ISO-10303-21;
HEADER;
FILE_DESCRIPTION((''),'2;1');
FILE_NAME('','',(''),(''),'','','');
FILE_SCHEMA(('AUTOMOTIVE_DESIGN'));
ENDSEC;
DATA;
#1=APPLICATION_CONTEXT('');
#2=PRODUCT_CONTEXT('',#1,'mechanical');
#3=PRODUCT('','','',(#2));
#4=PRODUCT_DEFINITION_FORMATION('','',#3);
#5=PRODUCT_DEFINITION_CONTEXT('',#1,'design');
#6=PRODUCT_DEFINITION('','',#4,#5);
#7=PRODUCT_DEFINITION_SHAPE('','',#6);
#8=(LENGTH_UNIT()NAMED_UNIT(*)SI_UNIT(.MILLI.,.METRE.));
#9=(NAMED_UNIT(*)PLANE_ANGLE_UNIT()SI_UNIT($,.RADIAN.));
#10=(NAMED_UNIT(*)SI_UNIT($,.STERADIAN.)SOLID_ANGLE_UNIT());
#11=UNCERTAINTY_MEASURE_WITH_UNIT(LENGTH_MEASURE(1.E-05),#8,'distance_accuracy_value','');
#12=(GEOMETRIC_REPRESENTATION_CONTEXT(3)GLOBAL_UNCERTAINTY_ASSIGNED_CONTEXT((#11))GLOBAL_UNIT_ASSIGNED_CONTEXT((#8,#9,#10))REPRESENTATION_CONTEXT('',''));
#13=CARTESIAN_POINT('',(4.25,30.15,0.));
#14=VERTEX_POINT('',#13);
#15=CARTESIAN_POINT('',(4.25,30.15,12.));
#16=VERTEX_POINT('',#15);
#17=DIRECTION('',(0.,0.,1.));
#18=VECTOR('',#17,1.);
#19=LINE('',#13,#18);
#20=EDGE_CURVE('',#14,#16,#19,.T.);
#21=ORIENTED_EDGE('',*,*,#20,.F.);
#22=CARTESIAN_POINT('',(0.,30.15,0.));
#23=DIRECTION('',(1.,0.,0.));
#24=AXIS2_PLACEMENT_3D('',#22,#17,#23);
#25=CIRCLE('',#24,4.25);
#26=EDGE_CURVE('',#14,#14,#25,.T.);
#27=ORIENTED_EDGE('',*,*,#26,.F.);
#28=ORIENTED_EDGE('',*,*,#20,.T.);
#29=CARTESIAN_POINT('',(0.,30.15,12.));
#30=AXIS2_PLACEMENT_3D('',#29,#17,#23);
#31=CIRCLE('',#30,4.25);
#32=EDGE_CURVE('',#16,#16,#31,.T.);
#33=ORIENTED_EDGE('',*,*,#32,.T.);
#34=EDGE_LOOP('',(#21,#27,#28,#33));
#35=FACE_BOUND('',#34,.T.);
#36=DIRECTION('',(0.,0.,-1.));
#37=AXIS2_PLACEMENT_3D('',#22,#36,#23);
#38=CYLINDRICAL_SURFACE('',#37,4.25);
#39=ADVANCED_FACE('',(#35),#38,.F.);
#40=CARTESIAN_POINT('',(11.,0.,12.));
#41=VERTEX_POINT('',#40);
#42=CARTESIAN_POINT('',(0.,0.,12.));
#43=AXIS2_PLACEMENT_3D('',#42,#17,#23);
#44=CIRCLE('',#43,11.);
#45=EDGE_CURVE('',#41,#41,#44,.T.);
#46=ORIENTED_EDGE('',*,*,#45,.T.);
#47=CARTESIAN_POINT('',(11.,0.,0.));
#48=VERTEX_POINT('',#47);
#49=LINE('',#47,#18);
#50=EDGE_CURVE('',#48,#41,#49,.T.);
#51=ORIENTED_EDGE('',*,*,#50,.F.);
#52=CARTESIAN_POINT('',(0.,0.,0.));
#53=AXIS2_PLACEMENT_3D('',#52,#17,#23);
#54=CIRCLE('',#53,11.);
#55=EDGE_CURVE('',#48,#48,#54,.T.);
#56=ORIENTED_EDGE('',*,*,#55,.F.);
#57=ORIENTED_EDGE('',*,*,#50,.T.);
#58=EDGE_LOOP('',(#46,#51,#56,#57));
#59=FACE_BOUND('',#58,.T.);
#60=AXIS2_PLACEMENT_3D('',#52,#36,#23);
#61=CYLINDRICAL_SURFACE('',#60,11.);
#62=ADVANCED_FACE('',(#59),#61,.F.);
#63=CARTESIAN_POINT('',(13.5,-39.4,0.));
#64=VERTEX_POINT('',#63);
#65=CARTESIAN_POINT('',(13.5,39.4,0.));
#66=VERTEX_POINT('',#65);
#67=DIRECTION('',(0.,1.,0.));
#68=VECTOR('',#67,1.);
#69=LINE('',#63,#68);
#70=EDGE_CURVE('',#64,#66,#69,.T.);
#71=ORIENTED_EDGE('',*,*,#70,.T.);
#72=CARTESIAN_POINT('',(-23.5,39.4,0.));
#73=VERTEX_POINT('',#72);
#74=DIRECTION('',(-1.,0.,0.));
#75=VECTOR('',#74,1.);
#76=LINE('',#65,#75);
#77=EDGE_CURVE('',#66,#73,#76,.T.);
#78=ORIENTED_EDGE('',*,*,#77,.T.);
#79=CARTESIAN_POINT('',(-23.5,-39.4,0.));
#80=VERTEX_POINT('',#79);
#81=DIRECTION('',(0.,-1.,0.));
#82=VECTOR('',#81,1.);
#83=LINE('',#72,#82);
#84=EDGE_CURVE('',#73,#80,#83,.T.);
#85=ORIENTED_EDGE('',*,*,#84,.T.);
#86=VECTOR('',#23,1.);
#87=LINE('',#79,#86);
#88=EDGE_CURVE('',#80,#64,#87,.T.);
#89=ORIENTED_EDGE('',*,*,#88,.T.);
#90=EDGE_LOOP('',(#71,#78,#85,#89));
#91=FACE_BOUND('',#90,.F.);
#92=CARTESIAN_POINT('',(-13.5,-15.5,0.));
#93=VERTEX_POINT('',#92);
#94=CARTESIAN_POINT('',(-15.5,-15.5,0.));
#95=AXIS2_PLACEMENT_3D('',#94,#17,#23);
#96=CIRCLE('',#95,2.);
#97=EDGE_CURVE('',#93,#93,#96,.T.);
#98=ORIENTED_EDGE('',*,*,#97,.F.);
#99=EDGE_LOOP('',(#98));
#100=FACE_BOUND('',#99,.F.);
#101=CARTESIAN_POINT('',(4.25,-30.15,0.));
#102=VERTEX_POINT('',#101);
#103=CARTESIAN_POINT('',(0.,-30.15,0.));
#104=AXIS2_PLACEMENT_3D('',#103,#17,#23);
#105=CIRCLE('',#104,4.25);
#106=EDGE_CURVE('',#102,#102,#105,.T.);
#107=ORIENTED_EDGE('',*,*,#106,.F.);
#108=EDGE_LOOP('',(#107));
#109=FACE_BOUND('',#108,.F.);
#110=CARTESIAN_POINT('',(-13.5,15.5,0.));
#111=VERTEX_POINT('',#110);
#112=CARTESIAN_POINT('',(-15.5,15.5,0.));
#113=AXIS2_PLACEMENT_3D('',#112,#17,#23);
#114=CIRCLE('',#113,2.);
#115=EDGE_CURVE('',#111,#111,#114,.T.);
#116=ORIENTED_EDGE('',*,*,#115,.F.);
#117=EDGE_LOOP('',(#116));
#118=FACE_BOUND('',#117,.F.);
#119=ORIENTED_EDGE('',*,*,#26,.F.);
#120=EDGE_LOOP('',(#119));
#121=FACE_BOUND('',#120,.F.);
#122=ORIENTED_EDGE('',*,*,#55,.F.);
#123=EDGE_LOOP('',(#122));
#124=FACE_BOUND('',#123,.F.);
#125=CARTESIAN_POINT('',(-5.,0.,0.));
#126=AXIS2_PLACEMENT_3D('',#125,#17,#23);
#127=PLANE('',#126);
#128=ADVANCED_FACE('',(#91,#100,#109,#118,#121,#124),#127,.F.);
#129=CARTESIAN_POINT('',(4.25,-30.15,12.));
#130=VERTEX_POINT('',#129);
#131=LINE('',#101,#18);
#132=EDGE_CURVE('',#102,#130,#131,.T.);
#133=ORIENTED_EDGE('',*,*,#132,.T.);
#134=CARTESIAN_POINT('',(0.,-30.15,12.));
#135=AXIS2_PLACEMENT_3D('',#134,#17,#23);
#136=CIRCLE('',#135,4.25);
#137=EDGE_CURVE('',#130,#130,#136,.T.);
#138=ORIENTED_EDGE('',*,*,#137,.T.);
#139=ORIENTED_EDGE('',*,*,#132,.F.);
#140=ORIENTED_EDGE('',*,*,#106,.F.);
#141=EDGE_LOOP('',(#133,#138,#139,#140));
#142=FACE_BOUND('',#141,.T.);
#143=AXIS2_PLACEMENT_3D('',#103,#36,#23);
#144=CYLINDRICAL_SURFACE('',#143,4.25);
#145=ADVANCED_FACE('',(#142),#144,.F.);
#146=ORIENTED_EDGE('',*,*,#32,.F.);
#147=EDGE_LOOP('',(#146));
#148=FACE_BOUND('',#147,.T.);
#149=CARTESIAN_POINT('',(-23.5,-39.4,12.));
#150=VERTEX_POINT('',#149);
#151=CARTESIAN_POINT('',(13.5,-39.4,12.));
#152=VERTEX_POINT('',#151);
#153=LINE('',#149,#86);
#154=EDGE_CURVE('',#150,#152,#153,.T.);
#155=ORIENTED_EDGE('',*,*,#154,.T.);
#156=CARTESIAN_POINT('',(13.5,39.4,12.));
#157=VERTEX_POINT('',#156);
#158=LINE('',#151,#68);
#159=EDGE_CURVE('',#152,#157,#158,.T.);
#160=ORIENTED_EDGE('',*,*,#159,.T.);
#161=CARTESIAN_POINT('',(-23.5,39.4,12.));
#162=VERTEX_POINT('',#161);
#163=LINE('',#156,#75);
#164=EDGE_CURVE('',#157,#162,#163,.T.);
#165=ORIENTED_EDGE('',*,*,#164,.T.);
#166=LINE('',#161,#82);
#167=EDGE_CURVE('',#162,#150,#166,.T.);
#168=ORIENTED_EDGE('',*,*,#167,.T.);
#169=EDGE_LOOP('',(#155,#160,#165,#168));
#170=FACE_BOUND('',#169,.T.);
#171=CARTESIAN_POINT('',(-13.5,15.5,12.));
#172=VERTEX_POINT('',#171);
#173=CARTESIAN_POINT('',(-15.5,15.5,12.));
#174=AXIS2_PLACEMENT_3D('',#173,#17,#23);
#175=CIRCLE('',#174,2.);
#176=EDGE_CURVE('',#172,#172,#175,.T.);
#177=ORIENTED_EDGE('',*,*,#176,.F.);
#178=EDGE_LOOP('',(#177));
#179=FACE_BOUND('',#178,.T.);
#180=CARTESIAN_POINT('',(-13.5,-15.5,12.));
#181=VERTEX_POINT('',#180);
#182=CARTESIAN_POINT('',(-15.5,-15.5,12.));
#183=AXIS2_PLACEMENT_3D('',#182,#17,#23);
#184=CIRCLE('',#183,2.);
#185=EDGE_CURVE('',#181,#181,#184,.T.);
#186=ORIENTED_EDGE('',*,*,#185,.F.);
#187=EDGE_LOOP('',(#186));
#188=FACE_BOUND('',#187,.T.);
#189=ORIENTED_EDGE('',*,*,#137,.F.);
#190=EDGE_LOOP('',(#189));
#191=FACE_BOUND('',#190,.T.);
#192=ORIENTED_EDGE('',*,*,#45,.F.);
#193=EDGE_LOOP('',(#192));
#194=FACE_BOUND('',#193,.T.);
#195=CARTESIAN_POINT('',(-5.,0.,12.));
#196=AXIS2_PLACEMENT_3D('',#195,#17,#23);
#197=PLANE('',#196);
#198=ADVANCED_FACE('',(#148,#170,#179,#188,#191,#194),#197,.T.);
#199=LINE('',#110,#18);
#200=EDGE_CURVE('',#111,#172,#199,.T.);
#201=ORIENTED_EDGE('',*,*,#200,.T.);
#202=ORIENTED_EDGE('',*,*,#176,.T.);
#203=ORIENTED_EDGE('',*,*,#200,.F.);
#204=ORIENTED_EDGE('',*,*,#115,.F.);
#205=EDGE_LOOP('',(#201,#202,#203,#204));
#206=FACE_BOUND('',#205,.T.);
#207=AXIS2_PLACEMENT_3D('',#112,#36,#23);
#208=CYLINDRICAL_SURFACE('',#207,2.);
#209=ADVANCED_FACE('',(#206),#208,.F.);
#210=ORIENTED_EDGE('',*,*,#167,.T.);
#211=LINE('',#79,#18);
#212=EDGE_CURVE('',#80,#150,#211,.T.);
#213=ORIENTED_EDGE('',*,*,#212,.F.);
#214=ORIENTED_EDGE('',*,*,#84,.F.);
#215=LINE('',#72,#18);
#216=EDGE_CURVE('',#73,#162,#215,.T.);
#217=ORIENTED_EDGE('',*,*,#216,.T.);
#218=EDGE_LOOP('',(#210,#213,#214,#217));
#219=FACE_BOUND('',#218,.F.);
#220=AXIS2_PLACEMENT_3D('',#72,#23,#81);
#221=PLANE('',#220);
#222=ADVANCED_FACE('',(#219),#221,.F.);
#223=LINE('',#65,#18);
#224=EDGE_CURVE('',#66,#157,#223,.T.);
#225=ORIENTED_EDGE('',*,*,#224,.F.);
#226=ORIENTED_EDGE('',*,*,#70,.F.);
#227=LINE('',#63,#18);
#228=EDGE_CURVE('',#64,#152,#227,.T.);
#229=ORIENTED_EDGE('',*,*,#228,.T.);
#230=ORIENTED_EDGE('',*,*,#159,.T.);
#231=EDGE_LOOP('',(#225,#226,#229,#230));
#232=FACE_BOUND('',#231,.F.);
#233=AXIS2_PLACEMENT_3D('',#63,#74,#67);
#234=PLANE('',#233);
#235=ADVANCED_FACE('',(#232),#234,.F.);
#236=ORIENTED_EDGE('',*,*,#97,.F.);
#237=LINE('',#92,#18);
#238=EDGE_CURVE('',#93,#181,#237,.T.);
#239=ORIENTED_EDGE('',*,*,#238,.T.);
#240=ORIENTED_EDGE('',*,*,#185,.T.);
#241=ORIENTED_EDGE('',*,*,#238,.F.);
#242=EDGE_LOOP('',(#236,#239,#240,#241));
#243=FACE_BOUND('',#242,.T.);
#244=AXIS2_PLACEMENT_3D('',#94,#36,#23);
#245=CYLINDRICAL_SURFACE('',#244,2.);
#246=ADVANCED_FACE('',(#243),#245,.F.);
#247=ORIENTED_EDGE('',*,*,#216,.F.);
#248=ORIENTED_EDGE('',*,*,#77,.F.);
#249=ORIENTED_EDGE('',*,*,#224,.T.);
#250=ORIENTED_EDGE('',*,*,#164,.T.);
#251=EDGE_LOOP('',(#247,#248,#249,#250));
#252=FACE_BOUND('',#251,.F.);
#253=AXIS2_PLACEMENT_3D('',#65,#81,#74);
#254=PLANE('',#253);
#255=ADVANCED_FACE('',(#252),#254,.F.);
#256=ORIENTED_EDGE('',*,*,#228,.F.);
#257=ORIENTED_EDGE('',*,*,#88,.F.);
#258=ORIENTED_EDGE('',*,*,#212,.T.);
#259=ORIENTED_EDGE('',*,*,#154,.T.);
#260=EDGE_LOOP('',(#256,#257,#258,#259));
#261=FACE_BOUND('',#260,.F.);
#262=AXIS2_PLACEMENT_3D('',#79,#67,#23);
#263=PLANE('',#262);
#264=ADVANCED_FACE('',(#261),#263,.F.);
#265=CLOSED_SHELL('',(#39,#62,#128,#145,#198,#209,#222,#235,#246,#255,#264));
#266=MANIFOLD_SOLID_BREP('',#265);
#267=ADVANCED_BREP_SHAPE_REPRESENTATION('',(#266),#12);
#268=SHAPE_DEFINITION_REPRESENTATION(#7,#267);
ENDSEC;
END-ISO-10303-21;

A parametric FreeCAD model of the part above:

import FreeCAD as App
import Part
import Sketcher
from FreeCAD import Vector
Q = App.Units.Quantity

doc = App.newDocument("Part")
body = doc.addObject("PartDesign::Body", "Body")

# Sketch on XY plane
sketch1 = doc.addObject("Sketcher::SketchObject", "Sketch")
body.addObject(sketch1)
sketch1.AttachmentSupport = (doc.XY_Plane, [""])
sketch1.MapMode = "FlatFace"
sketch1.addGeometry(Part.LineSegment(Vector(13.5, -39.4, 0), Vector(13.5, 39.4, 0)), False)
sketch1.addGeometry(Part.LineSegment(Vector(13.5, 39.4, 0), Vector(-23.5, 39.4, 0)), False)
sketch1.addGeometry(Part.LineSegment(Vector(-23.5, 39.4, 0), Vector(-23.5, -39.4, 0)), False)
sketch1.addGeometry(Part.LineSegment(Vector(-23.5, -39.4, 0), Vector(13.5, -39.4, 0)), False)
sketch1.addGeometry(Part.Circle(Vector(-15.5, -15.5, 0), Vector(0, 0, 1), 2), False)
sketch1.addGeometry(Part.Circle(Vector(0, -30.15, 0), Vector(0, 0, 1), 4.25), False)
sketch1.addGeometry(Part.Circle(Vector(-15.5, 15.5, 0), Vector(0, 0, 1), 2), False)
sketch1.addGeometry(Part.Circle(Vector(0, 0, 0), Vector(0, 0, 1), 11), False)
sketch1.addGeometry(Part.Circle(Vector(0, 30.15, 0), Vector(0, 0, 1), 4.25), False)
sketch1.addConstraint(Sketcher.Constraint("Coincident", 0, 2, 1, 1))
sketch1.addConstraint(Sketcher.Constraint("Coincident", 1, 2, 2, 1))
sketch1.addConstraint(Sketcher.Constraint("Coincident", 2, 2, 3, 1))
sketch1.addConstraint(Sketcher.Constraint("Coincident", 3, 2, 0, 1))
sketch1.addConstraint(Sketcher.Constraint("Vertical", 0))
sketch1.addConstraint(Sketcher.Constraint("Horizontal", 1))
sketch1.addConstraint(Sketcher.Constraint("Vertical", 2))
sketch1.addConstraint(Sketcher.Constraint("Horizontal", 3))
sketch1.addConstraint(Sketcher.Constraint("Coincident", 7, 3, -1, 1))
sketch1.addConstraint(Sketcher.Constraint("Equal", 4, 6))
sketch1.addConstraint(Sketcher.Constraint("Equal", 5, 8))
sketch1.addConstraint(Sketcher.Constraint("Symmetric", 5, 3, 8, 3, -1, 1))
sketch1.addConstraint(Sketcher.Constraint("Symmetric", 4, 3, 6, 3, -1))
sketch1.addConstraint(Sketcher.Constraint("PointOnObject", 5, 3, -2))
sketch1.addConstraint(Sketcher.Constraint("Diameter", 4, Q("4 mm")))
sketch1.addConstraint(Sketcher.Constraint("Diameter", 7, Q("22 mm")))
sketch1.addConstraint(Sketcher.Constraint("Diameter", 5, Q("8.5 mm")))
sketch1.addConstraint(Sketcher.Constraint("DistanceX", 1, 2, 1, 1, Q("37 mm")))
sketch1.addConstraint(Sketcher.Constraint("DistanceY", 0, 1, 0, 2, Q("78.8 mm")))
sketch1.addConstraint(Sketcher.Constraint("DistanceY", 4, 3, 6, 3, Q("31 mm")))
sketch1.addConstraint(Sketcher.Constraint("DistanceX", 6, 3, 0, 2, Q("29 mm")))
sketch1.addConstraint(Sketcher.Constraint("DistanceX", 4, 3, -1, 1, Q("15.5 mm")))
sketch1.addConstraint(Sketcher.Constraint("DistanceY", -1, 1, 0, 2, Q("39.4 mm")))
sketch1.addConstraint(Sketcher.Constraint("DistanceY", 5, 3, 8, 3, Q("60.3 mm")))
pad1 = doc.addObject("PartDesign::Pad", "Pad")
body.addObject(pad1)
pad1.Profile = sketch1
pad1.Length = 12

doc.recompute()
